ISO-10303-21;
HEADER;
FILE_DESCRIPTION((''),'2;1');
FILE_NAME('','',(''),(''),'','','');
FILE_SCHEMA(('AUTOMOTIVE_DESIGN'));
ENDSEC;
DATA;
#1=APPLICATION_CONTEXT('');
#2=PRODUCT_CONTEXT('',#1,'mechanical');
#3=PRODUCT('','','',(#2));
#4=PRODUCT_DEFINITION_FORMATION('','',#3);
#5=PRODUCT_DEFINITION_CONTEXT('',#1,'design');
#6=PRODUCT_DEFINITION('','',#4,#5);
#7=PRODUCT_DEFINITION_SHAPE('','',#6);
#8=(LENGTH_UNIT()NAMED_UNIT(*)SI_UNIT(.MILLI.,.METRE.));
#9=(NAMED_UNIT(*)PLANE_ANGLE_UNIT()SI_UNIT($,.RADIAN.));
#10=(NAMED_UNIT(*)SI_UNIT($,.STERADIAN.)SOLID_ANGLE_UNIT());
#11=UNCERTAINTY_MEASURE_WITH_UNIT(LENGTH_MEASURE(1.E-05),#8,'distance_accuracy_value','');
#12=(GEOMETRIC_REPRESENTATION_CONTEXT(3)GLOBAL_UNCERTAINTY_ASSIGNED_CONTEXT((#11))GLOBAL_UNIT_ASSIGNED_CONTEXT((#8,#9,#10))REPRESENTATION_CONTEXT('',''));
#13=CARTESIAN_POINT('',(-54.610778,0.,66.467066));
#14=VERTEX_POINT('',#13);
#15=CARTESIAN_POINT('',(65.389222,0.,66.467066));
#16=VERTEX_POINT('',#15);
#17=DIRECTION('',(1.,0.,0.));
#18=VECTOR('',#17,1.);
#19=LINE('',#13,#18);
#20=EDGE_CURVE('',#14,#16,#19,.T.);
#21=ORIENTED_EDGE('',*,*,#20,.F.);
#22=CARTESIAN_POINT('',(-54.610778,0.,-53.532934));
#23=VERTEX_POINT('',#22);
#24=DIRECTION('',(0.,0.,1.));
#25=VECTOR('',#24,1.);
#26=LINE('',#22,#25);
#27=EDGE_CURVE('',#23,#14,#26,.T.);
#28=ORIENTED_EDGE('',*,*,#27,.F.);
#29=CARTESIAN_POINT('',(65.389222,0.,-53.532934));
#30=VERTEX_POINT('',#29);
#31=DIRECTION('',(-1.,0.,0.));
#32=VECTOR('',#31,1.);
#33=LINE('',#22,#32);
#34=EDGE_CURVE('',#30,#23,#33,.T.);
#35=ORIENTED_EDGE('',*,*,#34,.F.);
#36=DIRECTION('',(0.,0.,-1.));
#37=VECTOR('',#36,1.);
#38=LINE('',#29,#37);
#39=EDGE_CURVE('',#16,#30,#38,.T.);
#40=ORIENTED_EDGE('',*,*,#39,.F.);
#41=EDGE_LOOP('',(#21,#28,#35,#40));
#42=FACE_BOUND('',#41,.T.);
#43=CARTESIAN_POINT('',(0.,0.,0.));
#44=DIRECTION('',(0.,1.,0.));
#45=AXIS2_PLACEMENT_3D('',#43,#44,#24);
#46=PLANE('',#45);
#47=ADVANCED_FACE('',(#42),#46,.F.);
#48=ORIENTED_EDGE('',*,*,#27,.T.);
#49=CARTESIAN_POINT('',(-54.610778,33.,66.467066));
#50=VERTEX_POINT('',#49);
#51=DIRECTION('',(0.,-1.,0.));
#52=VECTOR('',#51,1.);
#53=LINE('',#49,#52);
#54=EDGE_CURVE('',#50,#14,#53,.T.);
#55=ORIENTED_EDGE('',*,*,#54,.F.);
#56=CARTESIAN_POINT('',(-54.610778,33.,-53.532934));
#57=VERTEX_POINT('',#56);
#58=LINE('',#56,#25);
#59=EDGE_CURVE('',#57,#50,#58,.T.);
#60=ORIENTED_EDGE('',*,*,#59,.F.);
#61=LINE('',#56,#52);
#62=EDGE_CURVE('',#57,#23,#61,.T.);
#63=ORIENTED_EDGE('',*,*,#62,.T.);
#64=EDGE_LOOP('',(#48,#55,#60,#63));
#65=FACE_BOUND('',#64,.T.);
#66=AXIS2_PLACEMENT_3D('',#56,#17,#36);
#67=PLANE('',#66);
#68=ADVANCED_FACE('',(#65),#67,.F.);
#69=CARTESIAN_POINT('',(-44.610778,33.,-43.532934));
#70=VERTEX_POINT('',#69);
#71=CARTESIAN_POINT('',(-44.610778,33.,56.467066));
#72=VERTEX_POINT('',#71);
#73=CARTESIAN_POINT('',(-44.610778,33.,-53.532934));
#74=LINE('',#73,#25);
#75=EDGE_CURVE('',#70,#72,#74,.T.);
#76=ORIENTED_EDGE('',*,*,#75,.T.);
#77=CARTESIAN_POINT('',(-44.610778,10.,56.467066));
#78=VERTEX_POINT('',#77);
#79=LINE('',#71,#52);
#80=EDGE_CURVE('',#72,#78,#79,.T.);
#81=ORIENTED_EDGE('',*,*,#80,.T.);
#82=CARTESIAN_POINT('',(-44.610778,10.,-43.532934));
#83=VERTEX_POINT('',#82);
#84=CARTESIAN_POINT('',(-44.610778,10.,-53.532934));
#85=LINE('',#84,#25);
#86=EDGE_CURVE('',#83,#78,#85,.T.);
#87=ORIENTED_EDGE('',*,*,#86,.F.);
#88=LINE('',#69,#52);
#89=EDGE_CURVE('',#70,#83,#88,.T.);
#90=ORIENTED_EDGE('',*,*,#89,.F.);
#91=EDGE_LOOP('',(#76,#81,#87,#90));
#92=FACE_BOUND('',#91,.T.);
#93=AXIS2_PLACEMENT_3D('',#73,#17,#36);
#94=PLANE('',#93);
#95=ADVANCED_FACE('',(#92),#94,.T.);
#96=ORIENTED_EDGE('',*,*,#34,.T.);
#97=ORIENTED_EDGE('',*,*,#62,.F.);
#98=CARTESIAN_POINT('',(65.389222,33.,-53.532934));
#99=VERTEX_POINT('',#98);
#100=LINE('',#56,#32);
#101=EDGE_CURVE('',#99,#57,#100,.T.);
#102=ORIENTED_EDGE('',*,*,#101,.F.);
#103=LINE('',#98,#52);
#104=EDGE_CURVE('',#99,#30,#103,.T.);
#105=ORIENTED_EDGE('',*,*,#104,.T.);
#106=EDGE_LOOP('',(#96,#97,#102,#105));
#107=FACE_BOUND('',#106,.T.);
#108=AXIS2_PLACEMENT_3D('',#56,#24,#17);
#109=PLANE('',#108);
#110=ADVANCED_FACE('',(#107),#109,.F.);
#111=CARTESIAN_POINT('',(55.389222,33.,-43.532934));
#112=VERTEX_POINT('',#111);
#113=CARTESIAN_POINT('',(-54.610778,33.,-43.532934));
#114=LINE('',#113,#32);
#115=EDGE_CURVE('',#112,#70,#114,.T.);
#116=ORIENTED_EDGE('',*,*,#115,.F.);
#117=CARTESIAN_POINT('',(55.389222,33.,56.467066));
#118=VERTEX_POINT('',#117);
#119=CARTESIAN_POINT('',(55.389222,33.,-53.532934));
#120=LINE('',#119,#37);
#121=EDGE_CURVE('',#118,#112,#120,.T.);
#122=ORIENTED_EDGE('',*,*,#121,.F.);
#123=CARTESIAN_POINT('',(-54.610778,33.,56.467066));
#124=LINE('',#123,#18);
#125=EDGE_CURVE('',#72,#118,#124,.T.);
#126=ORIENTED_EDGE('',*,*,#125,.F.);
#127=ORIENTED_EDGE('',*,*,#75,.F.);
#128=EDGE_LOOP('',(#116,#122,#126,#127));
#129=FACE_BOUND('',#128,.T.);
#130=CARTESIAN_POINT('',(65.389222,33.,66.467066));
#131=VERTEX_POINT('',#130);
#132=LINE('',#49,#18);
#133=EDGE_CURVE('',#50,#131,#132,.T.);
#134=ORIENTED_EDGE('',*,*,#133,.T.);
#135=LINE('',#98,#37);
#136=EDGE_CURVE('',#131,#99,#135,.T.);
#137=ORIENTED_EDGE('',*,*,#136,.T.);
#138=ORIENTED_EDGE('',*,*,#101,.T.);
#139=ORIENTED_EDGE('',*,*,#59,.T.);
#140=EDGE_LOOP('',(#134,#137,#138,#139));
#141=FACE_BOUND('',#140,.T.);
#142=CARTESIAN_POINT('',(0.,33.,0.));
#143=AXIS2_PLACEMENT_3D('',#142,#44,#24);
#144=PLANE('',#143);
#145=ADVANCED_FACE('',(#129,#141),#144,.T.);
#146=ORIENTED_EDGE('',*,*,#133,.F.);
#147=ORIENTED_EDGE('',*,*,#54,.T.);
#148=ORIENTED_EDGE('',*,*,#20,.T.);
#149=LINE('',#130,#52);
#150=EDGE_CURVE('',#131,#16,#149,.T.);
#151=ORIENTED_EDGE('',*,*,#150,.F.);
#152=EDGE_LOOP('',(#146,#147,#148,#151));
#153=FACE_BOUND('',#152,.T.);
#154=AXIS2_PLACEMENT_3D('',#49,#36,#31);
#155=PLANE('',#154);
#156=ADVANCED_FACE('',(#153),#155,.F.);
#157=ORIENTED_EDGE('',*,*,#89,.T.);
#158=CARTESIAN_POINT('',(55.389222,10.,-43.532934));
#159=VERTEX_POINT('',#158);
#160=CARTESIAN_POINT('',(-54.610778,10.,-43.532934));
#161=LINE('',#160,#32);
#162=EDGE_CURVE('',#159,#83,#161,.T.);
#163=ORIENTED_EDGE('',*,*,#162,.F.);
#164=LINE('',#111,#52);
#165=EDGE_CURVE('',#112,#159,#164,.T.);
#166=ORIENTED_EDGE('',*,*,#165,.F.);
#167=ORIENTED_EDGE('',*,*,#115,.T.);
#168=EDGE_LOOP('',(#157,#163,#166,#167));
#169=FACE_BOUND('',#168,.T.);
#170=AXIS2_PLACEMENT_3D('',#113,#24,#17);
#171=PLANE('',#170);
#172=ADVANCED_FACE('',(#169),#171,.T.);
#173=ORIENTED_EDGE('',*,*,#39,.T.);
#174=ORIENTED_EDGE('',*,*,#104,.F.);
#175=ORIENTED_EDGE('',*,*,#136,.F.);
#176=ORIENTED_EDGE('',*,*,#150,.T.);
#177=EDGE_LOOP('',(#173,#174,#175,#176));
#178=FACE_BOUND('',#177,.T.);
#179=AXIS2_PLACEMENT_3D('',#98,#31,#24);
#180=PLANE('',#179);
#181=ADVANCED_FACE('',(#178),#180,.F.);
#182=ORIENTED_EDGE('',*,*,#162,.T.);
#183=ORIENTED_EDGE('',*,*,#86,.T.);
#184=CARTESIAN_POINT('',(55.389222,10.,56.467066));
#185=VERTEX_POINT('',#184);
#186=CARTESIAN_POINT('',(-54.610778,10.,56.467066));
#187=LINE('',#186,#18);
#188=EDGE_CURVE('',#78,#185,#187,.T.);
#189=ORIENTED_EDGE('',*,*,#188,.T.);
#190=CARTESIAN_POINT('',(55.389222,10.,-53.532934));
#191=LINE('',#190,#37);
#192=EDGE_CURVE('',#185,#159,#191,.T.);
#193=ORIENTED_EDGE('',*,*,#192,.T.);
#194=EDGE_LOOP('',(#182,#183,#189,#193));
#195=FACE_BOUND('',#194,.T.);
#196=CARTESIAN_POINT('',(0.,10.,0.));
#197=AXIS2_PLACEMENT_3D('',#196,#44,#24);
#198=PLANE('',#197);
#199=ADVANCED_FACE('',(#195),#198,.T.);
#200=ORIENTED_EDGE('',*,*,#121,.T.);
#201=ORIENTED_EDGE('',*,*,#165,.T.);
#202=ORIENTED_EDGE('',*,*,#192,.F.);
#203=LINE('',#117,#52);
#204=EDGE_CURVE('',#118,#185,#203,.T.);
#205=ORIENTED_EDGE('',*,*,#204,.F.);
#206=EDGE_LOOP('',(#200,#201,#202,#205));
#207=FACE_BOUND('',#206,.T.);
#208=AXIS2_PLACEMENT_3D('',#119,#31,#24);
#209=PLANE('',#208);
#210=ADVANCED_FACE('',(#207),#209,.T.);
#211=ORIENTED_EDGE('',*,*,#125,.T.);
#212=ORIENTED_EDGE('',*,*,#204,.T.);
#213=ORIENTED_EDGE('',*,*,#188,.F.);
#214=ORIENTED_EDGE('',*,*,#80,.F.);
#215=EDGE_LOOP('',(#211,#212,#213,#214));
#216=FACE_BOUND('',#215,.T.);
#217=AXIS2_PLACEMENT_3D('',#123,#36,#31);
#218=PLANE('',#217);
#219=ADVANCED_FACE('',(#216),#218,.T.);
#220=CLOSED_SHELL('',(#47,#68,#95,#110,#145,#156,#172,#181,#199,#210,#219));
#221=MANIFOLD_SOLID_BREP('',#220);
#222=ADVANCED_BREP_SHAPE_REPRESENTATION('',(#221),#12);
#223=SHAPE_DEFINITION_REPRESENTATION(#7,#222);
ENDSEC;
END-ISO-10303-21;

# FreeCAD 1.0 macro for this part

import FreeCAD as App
import Part
import Sketcher

V = App.Vector
Q = App.Units.Quantity


def faces_at(feature, points):
    """Names of the faces that lie closest to the given points."""
    faces = feature.Shape.Faces
    near = lambda p: min(range(len(faces)), key=lambda i: faces[i].distToShape(Part.Vertex(*p))[0])
    return sorted({f"Face{near(p) + 1}" for p in points})


def add_polygon(sketch, points):
    """Adds a closed chain of lines whose ends are joined by coincident constraints."""
    first, n = sketch.GeometryCount, len(points)
    for a, b in zip(points, points[1:] + points[:1]):
        sketch.addGeometry(Part.LineSegment(App.Vector(*a, 0), App.Vector(*b, 0)), False)
    for i in range(n):
        sketch.addConstraint(Sketcher.Constraint("Coincident", first + i, 2, first + (i + 1) % n, 1))

doc = App.newDocument("Part")
body = doc.addObject("PartDesign::Body", "Body")

# Sketch on XZ plane
sketch1 = body.newObject("Sketcher::SketchObject", "Sketch")
sketch1.AttachmentSupport = (doc.getObject("XZ_Plane"), [""])
sketch1.MapMode = "FlatFace"
add_polygon(sketch1, [(-54.610778, -53.532934), (-54.610778, 66.467066), (65.389222, 66.467066), (65.389222, -53.532934)])  # lines 0-3
sketch1.addConstraint(Sketcher.Constraint("Vertical", 0))
sketch1.addConstraint(Sketcher.Constraint("Horizontal", 1))
sketch1.addConstraint(Sketcher.Constraint("Vertical", 2))
sketch1.addConstraint(Sketcher.Constraint("Horizontal", 3))
sketch1.addConstraint(Sketcher.Constraint("Equal", 3, 0))
sketch1.addConstraint(Sketcher.Constraint("DistanceX", 1, 1, 1, 2, Q("120 mm")))
sketch1.addConstraint(Sketcher.Constraint("DistanceX", 0, 2, -1, 1, Q("54.610778 mm")))
sketch1.addConstraint(Sketcher.Constraint("DistanceY", -1, 1, 0, 2, Q("66.467066 mm")))
pad1 = body.newObject("PartDesign::Pad", "Pad")
pad1.Profile = sketch1
pad1.Length = 33
pad1.Reversed = True
doc.recompute()

thickness = body.newObject("PartDesign::Thickness", "Thickness")
thickness.Base = (pad1, faces_at(pad1, [(5.389, 33, 6.467)]))
thickness.Value = 10
thickness.Reversed = True
thickness.Join = "Intersection"

doc.recompute()
